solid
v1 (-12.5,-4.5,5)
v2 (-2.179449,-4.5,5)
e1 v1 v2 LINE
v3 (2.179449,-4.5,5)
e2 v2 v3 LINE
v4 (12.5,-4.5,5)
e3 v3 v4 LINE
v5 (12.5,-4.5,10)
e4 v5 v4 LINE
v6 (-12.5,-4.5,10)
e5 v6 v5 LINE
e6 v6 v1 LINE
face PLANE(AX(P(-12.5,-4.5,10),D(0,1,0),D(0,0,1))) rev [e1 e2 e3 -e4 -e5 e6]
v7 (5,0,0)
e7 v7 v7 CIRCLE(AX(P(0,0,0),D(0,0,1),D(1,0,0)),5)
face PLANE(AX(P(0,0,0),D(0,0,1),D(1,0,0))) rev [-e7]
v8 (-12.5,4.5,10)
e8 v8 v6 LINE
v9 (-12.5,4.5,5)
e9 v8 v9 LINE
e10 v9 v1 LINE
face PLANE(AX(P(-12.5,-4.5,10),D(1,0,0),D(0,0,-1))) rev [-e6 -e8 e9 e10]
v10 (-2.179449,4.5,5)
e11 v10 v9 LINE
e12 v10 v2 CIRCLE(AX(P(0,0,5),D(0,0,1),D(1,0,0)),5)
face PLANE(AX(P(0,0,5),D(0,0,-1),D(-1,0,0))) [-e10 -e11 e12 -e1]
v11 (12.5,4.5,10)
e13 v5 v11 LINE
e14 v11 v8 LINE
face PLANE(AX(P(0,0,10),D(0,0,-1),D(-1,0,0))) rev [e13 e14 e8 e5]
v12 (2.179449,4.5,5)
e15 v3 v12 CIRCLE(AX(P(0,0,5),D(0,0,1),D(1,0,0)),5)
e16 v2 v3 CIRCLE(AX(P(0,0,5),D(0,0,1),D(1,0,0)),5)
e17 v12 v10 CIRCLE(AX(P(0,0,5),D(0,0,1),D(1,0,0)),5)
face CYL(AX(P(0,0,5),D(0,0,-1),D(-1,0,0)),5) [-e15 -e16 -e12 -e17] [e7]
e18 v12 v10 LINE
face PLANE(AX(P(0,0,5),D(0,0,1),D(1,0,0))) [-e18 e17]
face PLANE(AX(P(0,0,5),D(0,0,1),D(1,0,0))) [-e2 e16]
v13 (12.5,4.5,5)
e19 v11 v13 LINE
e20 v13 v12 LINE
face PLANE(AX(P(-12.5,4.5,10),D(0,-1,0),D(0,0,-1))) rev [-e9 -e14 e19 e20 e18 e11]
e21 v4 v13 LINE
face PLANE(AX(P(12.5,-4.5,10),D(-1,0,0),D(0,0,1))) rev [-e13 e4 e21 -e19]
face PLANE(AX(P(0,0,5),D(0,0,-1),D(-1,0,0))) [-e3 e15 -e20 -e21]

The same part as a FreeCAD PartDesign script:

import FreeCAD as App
import Part
import Sketcher

doc = App.newDocument("Part")
body = doc.addObject("PartDesign::Body", "Body")

sketch1 = doc.addObject("Sketcher::SketchObject", "Sketch")
body.addObject(sketch1)
sketch1.AttachmentSupport = (doc.XY_Plane, [""])
sketch1.MapMode = "FlatFace"
sketch1.addGeometry(Part.Circle(App.Vector(0, 0, 0), App.Vector(0, 0, 1), 5), False)
sketch1.addConstraint([
    Sketcher.Constraint("Coincident", 0, 3, -1, 1),
    Sketcher.Constraint("Diameter", 0, 10.0),
])
pad1 = doc.addObject("PartDesign::Pad", "Pad")
body.addObject(pad1)
pad1.Profile = sketch1
pad1.Length = 5

sketch2 = doc.addObject("Sketcher::SketchObject", "Sketch001")
body.addObject(sketch2)
sketch2.AttachmentSupport = (doc.XY_Plane, [""])
sketch2.MapMode = "FlatFace"
sketch2.AttachmentOffset = App.Placement(App.Vector(0, 0, 5), App.Rotation())
sketch2.addGeometry([
    Part.LineSegment(App.Vector(-12, 4, 0), App.Vector(-12, -4, 0)),
    Part.LineSegment(App.Vector(-12, -4, 0), App.Vector(12, -4, 0)),
    Part.LineSegment(App.Vector(12, -4, 0), App.Vector(12, 4, 0)),
    Part.LineSegment(App.Vector(12, 4, 0), App.Vector(-12, 4, 0)),
], False)
sketch2.addConstraint([
    Sketcher.Constraint("Coincident", 0, 2, 1, 1),
    Sketcher.Constraint("Coincident", 1, 2, 2, 1),
    Sketcher.Constraint("Coincident", 2, 2, 3, 1),
    Sketcher.Constraint("Coincident", 3, 2, 0, 1),
    Sketcher.Constraint("Vertical", 0),
    Sketcher.Constraint("Horizontal", 1),
    Sketcher.Constraint("Vertical", 2),
    Sketcher.Constraint("Horizontal", 3),
    Sketcher.Constraint("Symmetric", 0, 2, 2, 2, -1, 1),
    Sketcher.Constraint("DistanceX", 1, 1, 1, 2, 25.0),
    Sketcher.Constraint("DistanceY", 0, 2, 0, 1, 9.0),
])
pad2 = doc.addObject("PartDesign::Pad", "Pad001")
body.addObject(pad2)
pad2.Profile = sketch2
pad2.Length = 5

doc.recompute()
